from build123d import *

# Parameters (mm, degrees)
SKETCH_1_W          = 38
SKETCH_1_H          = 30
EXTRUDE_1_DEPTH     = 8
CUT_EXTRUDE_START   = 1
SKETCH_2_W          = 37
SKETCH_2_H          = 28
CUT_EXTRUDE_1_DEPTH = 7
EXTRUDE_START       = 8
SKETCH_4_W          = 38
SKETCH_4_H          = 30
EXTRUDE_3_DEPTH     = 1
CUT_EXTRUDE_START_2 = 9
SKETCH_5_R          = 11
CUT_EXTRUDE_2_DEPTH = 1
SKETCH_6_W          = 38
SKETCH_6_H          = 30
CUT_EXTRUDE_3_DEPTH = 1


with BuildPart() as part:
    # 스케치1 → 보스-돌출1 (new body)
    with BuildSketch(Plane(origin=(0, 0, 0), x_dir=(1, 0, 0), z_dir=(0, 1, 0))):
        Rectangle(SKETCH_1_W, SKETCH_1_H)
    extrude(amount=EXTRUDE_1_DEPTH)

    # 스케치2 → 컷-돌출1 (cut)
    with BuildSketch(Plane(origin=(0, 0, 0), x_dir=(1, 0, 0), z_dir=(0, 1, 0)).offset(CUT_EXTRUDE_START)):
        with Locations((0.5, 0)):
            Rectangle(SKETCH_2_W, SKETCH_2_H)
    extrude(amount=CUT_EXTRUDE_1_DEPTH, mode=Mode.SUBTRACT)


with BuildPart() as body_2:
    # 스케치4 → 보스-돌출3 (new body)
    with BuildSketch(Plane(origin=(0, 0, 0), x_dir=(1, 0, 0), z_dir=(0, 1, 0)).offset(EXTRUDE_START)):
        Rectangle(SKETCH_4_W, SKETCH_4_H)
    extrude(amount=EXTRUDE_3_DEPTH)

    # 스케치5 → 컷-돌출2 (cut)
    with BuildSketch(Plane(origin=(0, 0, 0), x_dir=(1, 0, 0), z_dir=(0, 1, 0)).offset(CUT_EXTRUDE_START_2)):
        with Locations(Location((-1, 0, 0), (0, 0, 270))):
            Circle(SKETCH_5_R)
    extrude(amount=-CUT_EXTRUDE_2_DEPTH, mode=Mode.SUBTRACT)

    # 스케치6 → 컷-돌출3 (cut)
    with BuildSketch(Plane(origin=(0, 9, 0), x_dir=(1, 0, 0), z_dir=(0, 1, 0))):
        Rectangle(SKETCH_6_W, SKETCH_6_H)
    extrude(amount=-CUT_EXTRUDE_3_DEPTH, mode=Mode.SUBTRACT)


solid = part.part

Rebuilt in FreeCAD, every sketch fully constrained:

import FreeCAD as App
import Part
import Sketcher

V = App.Vector


def add_polygon(sketch, points):
    """Adds a closed chain of lines whose ends are joined by coincident constraints."""
    first, n = sketch.GeometryCount, len(points)
    for a, b in zip(points, points[1:] + points[:1]):
        sketch.addGeometry(Part.LineSegment(App.Vector(*a, 0), App.Vector(*b, 0)), False)
    for i in range(n):
        sketch.addConstraint(Sketcher.Constraint("Coincident", first + i, 2, first + (i + 1) % n, 1))

doc = App.newDocument("Part")
body = doc.addObject("PartDesign::Body", "Body")

sketch1 = body.newObject("Sketcher::SketchObject", "Sketch")
sketch1.AttachmentSupport = (doc.getObject("XZ_Plane"), [""])
sketch1.MapMode = "FlatFace"
add_polygon(sketch1, [(-19, -15), (-19, 15), (19, 15), (19, -15)])
sketch1.addConstraint([
    Sketcher.Constraint("Vertical", 0),
    Sketcher.Constraint("Horizontal", 1),
    Sketcher.Constraint("Vertical", 2),
    Sketcher.Constraint("Horizontal", 3),
    Sketcher.Constraint("Symmetric", 0, 2, 2, 2, -1, 1),
    Sketcher.Constraint("DistanceX", 1, 1, 1, 2, 38.0),
    Sketcher.Constraint("DistanceY", 0, 1, 0, 2, 30.0),
])
pad1 = body.newObject("PartDesign::Pad", "Pad")
pad1.Profile = sketch1
pad1.Length = 8
pad1.Reversed = True

sketch2 = body.newObject("Sketcher::SketchObject", "Sketch001")
sketch2.AttachmentSupport = (doc.getObject("XZ_Plane"), [""])
sketch2.MapMode = "FlatFace"
sketch2.AttachmentOffset = App.Placement(V(0, 0, -1), App.Rotation())
add_polygon(sketch2, [(-18, -14), (-18, 14), (19, 14), (19, -14)])
sketch2.addConstraint([
    Sketcher.Constraint("Vertical", 0),
    Sketcher.Constraint("Horizontal", 1),
    Sketcher.Constraint("Vertical", 2),
    Sketcher.Constraint("Horizontal", 3),
    Sketcher.Constraint("DistanceX", 1, 1, 1, 2, 37.0),
    Sketcher.Constraint("DistanceY", 0, 1, 0, 2, 28.0),
    Sketcher.Constraint("DistanceX", 0, 2, -1, 1, 18.0),
    Sketcher.Constraint("DistanceY", -1, 1, 0, 2, 14.0),
])
pocket1 = body.newObject("PartDesign::Pocket", "Pocket")
pocket1.Profile = sketch2
pocket1.Length = 7
body2 = doc.addObject("PartDesign::Body", "Body001")

sketch3 = body2.newObject("Sketcher::SketchObject", "Sketch002")
sketch3.AttachmentSupport = (doc.getObject("XZ_Plane001"), [""])
sketch3.MapMode = "FlatFace"
sketch3.AttachmentOffset = App.Placement(V(0, 0, -8), App.Rotation())
add_polygon(sketch3, [(-19, -15), (-19, 15), (19, 15), (19, -15)])
sketch3.addConstraint([
    Sketcher.Constraint("Vertical", 0),
    Sketcher.Constraint("Horizontal", 1),
    Sketcher.Constraint("Vertical", 2),
    Sketcher.Constraint("Horizontal", 3),
    Sketcher.Constraint("Symmetric", 0, 2, 2, 2, -1, 1),
    Sketcher.Constraint("DistanceX", 1, 1, 1, 2, 38.0),
    Sketcher.Constraint("DistanceY", 0, 1, 0, 2, 30.0),
])
pad2 = body2.newObject("PartDesign::Pad", "Pad001")
pad2.Profile = sketch3
pad2.Length = 1
pad2.Reversed = True

sketch4 = body2.newObject("Sketcher::SketchObject", "Sketch003")
sketch4.AttachmentSupport = (doc.getObject("XZ_Plane001"), [""])
sketch4.MapMode = "FlatFace"
sketch4.AttachmentOffset = App.Placement(V(0, 0, -9), App.Rotation())
sketch4.addGeometry(Part.Circle(V(-1, 0, 0), V(0, 0, 1), 11), False)
sketch4.addConstraint([
    Sketcher.Constraint("PointOnObject", 0, 3, -1),
    Sketcher.Constraint("Diameter", 0, 22.0),
    Sketcher.Constraint("DistanceX", 0, 3, -1, 1, 1.0),
])
pocket2 = body2.newObject("PartDesign::Pocket", "Pocket001")
pocket2.Profile = sketch4
pocket2.Length = 1
pocket2.Reversed = True

sketch5 = body2.newObject("Sketcher::SketchObject", "Sketch004")
sketch5.AttachmentSupport = (doc.getObject("XZ_Plane001"), [""])
sketch5.MapMode = "FlatFace"
sketch5.AttachmentOffset = App.Placement(V(0, 0, -9), App.Rotation())
add_polygon(sketch5, [(-19, -15), (-19, 15), (19, 15), (19, -15)])
sketch5.addConstraint([
    Sketcher.Constraint("Vertical", 0),
    Sketcher.Constraint("Horizontal", 1),
    Sketcher.Constraint("Vertical", 2),
    Sketcher.Constraint("Horizontal", 3),
    Sketcher.Constraint("Symmetric", 0, 2, 2, 2, -1, 1),
    Sketcher.Constraint("DistanceX", 1, 1, 1, 2, 38.0),
    Sketcher.Constraint("DistanceY", 0, 1, 0, 2, 30.0),
])
pocket3 = body2.newObject("PartDesign::Pocket", "Pocket002")
pocket3.Profile = sketch5
pocket3.Length = 1
pocket3.Reversed = True

doc.recompute()
